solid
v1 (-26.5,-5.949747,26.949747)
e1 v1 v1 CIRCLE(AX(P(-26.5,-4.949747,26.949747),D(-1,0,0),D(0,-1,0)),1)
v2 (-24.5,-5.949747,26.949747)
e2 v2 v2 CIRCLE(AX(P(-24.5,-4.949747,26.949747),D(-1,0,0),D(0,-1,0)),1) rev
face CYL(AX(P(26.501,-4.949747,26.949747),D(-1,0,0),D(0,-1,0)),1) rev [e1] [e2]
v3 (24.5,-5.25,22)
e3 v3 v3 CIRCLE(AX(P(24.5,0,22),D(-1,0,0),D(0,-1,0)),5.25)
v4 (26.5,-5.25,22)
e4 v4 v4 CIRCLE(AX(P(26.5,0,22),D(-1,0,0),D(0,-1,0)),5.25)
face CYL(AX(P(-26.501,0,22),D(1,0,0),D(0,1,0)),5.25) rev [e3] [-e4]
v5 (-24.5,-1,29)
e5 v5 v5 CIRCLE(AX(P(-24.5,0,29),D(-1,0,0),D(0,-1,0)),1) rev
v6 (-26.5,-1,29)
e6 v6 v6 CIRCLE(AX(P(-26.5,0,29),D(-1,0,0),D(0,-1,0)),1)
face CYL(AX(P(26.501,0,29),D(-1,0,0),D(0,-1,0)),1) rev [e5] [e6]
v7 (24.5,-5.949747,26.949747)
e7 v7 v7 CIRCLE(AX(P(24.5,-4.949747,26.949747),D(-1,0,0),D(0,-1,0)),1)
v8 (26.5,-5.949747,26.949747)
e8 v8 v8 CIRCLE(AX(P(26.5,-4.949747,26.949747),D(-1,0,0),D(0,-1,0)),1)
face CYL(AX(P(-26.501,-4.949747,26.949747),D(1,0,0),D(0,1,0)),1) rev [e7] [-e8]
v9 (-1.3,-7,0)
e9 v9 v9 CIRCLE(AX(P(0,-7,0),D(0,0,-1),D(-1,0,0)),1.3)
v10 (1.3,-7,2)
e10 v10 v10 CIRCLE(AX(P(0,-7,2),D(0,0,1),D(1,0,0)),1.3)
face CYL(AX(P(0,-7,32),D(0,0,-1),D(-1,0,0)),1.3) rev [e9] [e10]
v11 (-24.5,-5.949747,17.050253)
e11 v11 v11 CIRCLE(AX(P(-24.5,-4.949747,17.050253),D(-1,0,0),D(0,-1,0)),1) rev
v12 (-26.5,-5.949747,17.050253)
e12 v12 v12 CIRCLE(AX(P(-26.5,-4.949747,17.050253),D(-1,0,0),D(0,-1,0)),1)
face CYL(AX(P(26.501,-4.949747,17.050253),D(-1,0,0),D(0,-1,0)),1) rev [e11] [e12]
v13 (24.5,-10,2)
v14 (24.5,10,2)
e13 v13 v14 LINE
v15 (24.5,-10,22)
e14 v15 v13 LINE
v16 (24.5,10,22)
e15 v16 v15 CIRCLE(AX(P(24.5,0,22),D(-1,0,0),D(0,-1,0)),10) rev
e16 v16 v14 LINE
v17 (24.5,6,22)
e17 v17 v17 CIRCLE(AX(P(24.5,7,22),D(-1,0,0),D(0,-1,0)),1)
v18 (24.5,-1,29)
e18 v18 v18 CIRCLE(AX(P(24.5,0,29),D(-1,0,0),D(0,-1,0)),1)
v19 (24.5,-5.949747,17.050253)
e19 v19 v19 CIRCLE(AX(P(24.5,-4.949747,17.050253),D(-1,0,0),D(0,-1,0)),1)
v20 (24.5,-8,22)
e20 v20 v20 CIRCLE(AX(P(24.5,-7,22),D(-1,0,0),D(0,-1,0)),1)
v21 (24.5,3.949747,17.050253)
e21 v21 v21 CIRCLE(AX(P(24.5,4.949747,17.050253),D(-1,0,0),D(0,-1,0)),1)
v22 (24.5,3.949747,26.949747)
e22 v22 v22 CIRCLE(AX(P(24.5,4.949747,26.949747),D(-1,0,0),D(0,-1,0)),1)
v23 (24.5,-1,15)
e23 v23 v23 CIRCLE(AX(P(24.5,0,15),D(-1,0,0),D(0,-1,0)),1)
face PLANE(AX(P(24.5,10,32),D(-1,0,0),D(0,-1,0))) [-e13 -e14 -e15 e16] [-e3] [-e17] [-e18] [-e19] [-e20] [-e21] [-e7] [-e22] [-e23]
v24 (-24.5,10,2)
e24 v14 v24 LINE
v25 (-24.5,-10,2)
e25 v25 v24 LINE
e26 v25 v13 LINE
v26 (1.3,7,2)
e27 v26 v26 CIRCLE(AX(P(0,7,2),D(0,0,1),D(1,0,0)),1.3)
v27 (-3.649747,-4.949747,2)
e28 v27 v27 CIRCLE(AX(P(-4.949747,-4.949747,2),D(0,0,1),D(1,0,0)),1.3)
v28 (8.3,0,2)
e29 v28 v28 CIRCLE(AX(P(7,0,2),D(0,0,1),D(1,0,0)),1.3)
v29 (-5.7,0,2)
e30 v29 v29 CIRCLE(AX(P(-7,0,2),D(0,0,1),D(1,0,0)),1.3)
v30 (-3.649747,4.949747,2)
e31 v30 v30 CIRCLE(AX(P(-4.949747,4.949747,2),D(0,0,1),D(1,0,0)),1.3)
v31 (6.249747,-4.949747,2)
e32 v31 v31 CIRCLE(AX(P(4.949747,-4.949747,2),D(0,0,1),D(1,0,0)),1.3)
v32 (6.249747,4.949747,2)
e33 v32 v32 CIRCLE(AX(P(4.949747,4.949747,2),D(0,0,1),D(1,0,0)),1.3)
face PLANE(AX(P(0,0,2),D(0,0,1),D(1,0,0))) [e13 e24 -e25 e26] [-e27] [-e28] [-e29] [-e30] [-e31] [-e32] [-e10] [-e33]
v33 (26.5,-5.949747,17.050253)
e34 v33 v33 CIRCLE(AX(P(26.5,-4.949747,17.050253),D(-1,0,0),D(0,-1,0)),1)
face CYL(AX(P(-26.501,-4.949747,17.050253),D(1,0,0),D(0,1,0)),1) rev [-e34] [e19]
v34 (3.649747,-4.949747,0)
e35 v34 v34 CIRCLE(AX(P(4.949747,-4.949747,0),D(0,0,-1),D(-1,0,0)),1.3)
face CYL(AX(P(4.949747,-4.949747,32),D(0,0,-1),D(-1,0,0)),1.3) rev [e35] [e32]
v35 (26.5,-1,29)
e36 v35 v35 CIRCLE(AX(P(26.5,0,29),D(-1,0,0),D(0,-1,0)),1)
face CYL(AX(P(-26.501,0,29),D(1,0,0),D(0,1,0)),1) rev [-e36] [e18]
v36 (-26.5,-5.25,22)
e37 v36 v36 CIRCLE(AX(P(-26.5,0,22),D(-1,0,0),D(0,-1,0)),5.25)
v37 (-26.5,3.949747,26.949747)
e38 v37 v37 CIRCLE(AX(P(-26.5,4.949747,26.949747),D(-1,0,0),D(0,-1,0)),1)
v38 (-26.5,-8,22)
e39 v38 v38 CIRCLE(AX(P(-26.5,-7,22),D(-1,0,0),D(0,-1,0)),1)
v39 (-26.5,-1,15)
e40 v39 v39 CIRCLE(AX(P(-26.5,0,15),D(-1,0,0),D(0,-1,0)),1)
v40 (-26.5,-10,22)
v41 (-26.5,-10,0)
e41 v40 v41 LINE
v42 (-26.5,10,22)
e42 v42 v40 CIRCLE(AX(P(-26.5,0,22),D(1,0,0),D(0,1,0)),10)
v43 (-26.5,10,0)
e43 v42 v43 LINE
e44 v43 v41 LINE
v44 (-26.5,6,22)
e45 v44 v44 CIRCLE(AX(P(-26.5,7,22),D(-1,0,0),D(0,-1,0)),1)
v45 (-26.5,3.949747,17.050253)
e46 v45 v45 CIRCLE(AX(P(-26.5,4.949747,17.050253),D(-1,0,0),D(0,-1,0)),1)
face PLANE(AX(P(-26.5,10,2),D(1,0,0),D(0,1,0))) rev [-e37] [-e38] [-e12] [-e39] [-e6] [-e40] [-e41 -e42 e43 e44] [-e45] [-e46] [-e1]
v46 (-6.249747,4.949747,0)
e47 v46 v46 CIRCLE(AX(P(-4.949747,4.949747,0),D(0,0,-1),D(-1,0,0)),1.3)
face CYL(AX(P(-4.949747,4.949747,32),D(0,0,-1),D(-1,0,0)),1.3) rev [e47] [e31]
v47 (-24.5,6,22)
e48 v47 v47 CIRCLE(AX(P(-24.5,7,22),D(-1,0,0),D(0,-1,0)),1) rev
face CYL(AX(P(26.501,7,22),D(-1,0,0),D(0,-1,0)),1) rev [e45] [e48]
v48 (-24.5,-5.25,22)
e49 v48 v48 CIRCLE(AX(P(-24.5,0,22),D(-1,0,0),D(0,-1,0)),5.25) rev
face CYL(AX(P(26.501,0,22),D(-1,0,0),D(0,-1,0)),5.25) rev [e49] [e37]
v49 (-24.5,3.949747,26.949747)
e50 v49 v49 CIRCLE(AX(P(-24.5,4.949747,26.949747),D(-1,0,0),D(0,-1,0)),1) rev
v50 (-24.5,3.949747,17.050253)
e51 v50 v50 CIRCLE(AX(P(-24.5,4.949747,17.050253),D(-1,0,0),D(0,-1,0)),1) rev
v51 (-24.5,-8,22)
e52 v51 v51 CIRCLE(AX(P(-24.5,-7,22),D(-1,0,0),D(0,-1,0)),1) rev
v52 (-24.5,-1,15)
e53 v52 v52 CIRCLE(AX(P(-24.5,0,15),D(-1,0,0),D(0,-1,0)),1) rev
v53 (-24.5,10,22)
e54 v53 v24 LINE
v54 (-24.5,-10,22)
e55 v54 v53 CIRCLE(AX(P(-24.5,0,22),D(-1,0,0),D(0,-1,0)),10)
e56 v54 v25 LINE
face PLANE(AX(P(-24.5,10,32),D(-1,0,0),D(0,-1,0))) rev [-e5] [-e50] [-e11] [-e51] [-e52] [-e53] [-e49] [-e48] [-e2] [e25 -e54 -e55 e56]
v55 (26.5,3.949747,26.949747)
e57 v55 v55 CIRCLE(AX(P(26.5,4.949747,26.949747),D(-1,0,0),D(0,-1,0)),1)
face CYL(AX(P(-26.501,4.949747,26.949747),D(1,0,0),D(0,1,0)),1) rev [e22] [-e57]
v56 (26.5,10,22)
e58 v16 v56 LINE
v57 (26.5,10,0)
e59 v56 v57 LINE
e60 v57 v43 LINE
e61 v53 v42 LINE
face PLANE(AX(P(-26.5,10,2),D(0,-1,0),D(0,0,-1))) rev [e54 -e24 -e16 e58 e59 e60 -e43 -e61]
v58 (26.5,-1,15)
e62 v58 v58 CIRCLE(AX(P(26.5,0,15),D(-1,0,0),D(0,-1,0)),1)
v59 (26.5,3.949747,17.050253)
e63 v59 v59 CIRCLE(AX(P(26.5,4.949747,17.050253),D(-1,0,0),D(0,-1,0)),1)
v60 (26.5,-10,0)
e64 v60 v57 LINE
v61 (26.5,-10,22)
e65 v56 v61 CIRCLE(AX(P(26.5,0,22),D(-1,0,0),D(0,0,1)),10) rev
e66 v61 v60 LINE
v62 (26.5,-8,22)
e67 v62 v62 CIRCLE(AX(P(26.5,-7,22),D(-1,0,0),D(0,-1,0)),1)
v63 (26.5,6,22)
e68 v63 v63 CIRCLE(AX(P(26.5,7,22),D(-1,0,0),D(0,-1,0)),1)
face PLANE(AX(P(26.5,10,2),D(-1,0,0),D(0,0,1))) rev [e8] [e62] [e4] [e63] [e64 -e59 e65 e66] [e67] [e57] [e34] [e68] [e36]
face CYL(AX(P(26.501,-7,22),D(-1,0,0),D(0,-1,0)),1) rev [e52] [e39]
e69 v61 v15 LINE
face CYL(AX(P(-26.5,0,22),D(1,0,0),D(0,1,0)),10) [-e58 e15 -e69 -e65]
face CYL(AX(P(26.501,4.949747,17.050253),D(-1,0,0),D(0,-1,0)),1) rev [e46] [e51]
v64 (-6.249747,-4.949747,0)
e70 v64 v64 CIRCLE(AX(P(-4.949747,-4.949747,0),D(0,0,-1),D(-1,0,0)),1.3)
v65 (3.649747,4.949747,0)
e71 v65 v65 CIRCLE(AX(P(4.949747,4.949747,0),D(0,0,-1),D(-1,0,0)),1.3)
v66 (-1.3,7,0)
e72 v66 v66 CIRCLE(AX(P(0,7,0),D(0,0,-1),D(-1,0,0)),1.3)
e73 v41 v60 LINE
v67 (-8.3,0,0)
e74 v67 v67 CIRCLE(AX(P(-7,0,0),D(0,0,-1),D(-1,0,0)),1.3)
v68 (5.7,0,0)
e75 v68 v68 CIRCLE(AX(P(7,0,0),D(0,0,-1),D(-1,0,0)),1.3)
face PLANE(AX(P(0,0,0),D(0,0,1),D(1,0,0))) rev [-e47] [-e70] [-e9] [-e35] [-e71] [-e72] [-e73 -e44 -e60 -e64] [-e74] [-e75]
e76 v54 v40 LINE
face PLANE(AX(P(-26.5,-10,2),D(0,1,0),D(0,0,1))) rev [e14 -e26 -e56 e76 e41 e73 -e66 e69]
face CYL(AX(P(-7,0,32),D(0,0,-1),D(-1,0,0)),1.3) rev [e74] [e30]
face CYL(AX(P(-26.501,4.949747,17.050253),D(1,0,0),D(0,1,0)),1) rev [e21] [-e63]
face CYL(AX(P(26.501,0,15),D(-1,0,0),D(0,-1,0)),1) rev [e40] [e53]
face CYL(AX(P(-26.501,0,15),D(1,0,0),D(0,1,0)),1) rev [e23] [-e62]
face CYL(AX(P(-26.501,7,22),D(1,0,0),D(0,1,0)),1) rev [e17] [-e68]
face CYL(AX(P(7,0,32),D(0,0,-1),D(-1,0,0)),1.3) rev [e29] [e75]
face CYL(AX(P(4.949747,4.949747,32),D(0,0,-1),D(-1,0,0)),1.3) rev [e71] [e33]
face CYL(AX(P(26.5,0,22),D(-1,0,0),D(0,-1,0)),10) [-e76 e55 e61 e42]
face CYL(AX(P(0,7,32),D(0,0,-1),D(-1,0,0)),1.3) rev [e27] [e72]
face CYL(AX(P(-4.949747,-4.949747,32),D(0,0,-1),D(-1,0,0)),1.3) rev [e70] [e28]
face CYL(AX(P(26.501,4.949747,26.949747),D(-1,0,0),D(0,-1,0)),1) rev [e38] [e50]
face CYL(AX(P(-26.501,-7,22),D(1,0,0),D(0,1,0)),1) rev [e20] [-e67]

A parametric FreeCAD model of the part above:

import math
import FreeCAD as App
import Part
import Sketcher

V = App.Vector
Q = App.Units.Quantity


def add_polygon(sketch, points):
    """Adds a closed chain of lines whose ends are joined by coincident constraints."""
    first, n = sketch.GeometryCount, len(points)
    for a, b in zip(points, points[1:] + points[:1]):
        sketch.addGeometry(Part.LineSegment(App.Vector(*a, 0), App.Vector(*b, 0)), False)
    for i in range(n):
        sketch.addConstraint(Sketcher.Constraint("Coincident", first + i, 2, first + (i + 1) % n, 1))

doc = App.newDocument("Part")
body = doc.addObject("PartDesign::Body", "Body")

# Sketch on XY plane
sketch1 = body.newObject("Sketcher::SketchObject", "Sketch")
sketch1.AttachmentSupport = (doc.getObject("XY_Plane"), [""])
sketch1.MapMode = "FlatFace"
add_polygon(sketch1, [(-26, 10), (-26, -10), (26, -10), (26, 10)])  # lines 0-3
sketch1.addConstraint([
    Sketcher.Constraint("Vertical", 0),
    Sketcher.Constraint("Horizontal", 1),
    Sketcher.Constraint("Vertical", 2),
    Sketcher.Constraint("Horizontal", 3),
    Sketcher.Constraint("Symmetric", 0, 2, 2, 2, -1, 1),
    Sketcher.Constraint("DistanceX", 1, 1, 1, 2, Q("53 mm")),
    Sketcher.Constraint("DistanceY", 0, 2, 0, 1, Q("20 mm")),
])
pad1 = body.newObject("PartDesign::Pad", "Pad")
pad1.Profile = sketch1
pad1.Length = 2

# Sketch on XY plane
sketch2 = body.newObject("Sketcher::SketchObject", "Sketch001")
sketch2.AttachmentSupport = (doc.getObject("XY_Plane"), [""])
sketch2.MapMode = "FlatFace"
sketch2.AttachmentOffset = App.Placement(V(0, 0, 2), App.Rotation())
add_polygon(sketch2, [(-26.5, 10), (-26.5, -10), (-24.5, -10), (-24.5, 10)])  # lines 0-3
sketch2.addConstraint([
    Sketcher.Constraint("Vertical", 0),
    Sketcher.Constraint("Horizontal", 1),
    Sketcher.Constraint("Vertical", 2),
    Sketcher.Constraint("Horizontal", 3),
    Sketcher.Constraint("DistanceX", 1, 1, 1, 2, Q("2 mm")),
    Sketcher.Constraint("DistanceY", 0, 2, 0, 1, Q("20 mm")),
    Sketcher.Constraint("DistanceY", 0, 2, -1, 1, Q("10 mm")),
    Sketcher.Constraint("DistanceX", 0, 2, -1, 1, Q("26.5 mm")),
])
pad2 = body.newObject("PartDesign::Pad", "Pad001")
pad2.Profile = sketch2
pad2.Length = 30

# Sketch on YZ plane
sketch3 = body.newObject("Sketcher::SketchObject", "Sketch002")
sketch3.AttachmentSupport = (doc.getObject("YZ_Plane"), [""])
sketch3.MapMode = "FlatFace"
sketch3.AttachmentOffset = App.Placement(V(0, 0, -54.5), App.Rotation())
sketch3.addGeometry([
    Part.LineSegment(V(10, 32, 0), V(0, 32, 0)),  # 0
    Part.ArcOfCircle(Part.Circle(V(0, 22, 0), V(0, 0, 1), 10), math.radians(0), math.radians(90)),  # 1
    Part.LineSegment(V(10, 22, 0), V(10, 32, 0)),  # 2
    Part.LineSegment(V(-10, 32, 0), V(-10, 22, 0)),  # 3
    Part.ArcOfCircle(Part.Circle(V(0, 22, 0), V(0, 0, 1), 10), math.radians(90), math.radians(180)),  # 4
    Part.LineSegment(V(0, 32, 0), V(-10, 32, 0)),  # 5
], False)
sketch3.addConstraint([
    Sketcher.Constraint("Tangent", 0, 2, 1, 2),
    Sketcher.Constraint("Tangent", 1, 1, 2, 1),
    Sketcher.Constraint("Coincident", 2, 2, 0, 1),
    Sketcher.Constraint("Tangent", 3, 2, 4, 2),
    Sketcher.Constraint("Tangent", 4, 1, 5, 1),
    Sketcher.Constraint("Coincident", 5, 2, 3, 1),
    Sketcher.Constraint("Horizontal", 0),
    Sketcher.Constraint("Vertical", 2),
    Sketcher.Constraint("Vertical", 3),
    Sketcher.Constraint("Horizontal", 5),
    Sketcher.Constraint("Coincident", 4, 3, 1, 3),
    Sketcher.Constraint("Equal", 1, 4),
    Sketcher.Constraint("PointOnObject", 1, 3, -2),
    Sketcher.Constraint("Radius", 1, Q("10 mm")),
    Sketcher.Constraint("DistanceY", -1, 1, 1, 3, Q("22 mm")),
])
pocket1 = body.newObject("PartDesign::Pocket", "Pocket")
pocket1.Profile = sketch3
pocket1.Length = 82
pocket1.Reversed = True

# Sketch on YZ plane
sketch4 = body.newObject("Sketcher::SketchObject", "Sketch003")
sketch4.AttachmentSupport = (doc.getObject("YZ_Plane"), [""])
sketch4.MapMode = "FlatFace"
sketch4.AttachmentOffset = App.Placement(V(0, 0, -26.5), App.Rotation())
sketch4.addGeometry([
    Part.Circle(V(0, 29, 0), V(0, 0, 1), 1),  # 0
    Part.Circle(V(-4.9, 26.9, 0), V(0, 0, 1), 1),  # 1
    Part.Circle(V(-7, 22, 0), V(0, 0, 1), 1),  # 2
    Part.Circle(V(-4.9, 17.1, 0), V(0, 0, 1), 1),  # 3
    Part.Circle(V(0, 15, 0), V(0, 0, 1), 1),  # 4
    Part.Circle(V(4.9, 17.1, 0), V(0, 0, 1), 1),  # 5
    Part.Circle(V(7, 22, 0), V(0, 0, 1), 1),  # 6
    Part.Circle(V(4.9, 26.9, 0), V(0, 0, 1), 1),  # 7
    Part.Circle(V(0, 22, 0), V(0, 0, 1), 5.2),  # 8
], False)
sketch4.addConstraint([
    Sketcher.Constraint("Equal", 0, 1),
    Sketcher.Constraint("Equal", 1, 2),
    Sketcher.Constraint("Equal", 2, 3),
    Sketcher.Constraint("Equal", 3, 4),
    Sketcher.Constraint("Equal", 4, 5),
    Sketcher.Constraint("Equal", 5, 6),
    Sketcher.Constraint("Equal", 6, 7),
    Sketcher.Constraint("Symmetric", 3, 3, 5, 3, -2),
    Sketcher.Constraint("Symmetric", 2, 3, 6, 3, -2),
    Sketcher.Constraint("Symmetric", 1, 3, 7, 3, -2),
    Sketcher.Constraint("PointOnObject", 0, 3, -2),
    Sketcher.Constraint("PointOnObject", 4, 3, -2),
    Sketcher.Constraint("PointOnObject", 8, 3, -2),
    Sketcher.Constraint("Horizontal", 6, 3, 8, 3),
    Sketcher.Constraint("Vertical", 1, 3, 3, 3),
    Sketcher.Constraint("Diameter", 0, Q("2 mm")),
    Sketcher.Constraint("Diameter", 8, Q("10.5 mm")),
    Sketcher.Constraint("DistanceY", -1, 1, 0, 3, Q("29 mm")),
    Sketcher.Constraint("DistanceX", 2, 3, -1, 1, Q("7 mm")),
    Sketcher.Constraint("DistanceY", -1, 1, 2, 3, Q("22 mm")),
    Sketcher.Constraint("DistanceY", -1, 1, 4, 3, Q("15 mm")),
    Sketcher.Constraint("DistanceX", 1, 3, -1, 1, Q("4.949747 mm")),
    Sketcher.Constraint("DistanceY", -1, 1, 1, 3, Q("26.949747 mm")),
    Sketcher.Constraint("DistanceY", -1, 1, 3, 3, Q("17.050253 mm")),
])
pocket2 = body.newObject("PartDesign::Pocket", "Pocket001")
pocket2.Profile = sketch4
pocket2.Length = 2
pocket2.Reversed = True
doc.recompute()

mirrored = body.newObject("PartDesign::Mirrored", "Mirrored")
mirrored.Originals = [pad2, pocket1, pocket2]
mirrored.MirrorPlane = (doc.getObject("YZ_Plane"), [""])
body.Tip = mirrored

# Sketch on XY plane
sketch5 = body.newObject("Sketcher::SketchObject", "Sketch004")
sketch5.AttachmentSupport = (doc.getObject("XY_Plane"), [""])
sketch5.MapMode = "FlatFace"
sketch5.addGeometry([
    Part.Circle(V(7, 0, 0), V(0, 0, 1), 1.3),  # 0
    Part.Circle(V(4.9, 4.9, 0), V(0, 0, 1), 1.3),  # 1
    Part.Circle(V(0, 7, 0), V(0, 0, 1), 1.3),  # 2
    Part.Circle(V(-4.9, 4.9, 0), V(0, 0, 1), 1.3),  # 3
    Part.Circle(V(-7, 0, 0), V(0, 0, 1), 1.3),  # 4
    Part.Circle(V(-4.9, -4.9, 0), V(0, 0, 1), 1.3),  # 5
    Part.Circle(V(0, -7, 0), V(0, 0, 1), 1.3),  # 6
    Part.Circle(V(4.9, -4.9, 0), V(0, 0, 1), 1.3),  # 7
], False)
sketch5.addConstraint([
    Sketcher.Constraint("Equal", 0, 1),
    Sketcher.Constraint("Equal", 1, 2),
    Sketcher.Constraint("Equal", 2, 3),
    Sketcher.Constraint("Equal", 3, 4),
    Sketcher.Constraint("Equal", 4, 5),
    Sketcher.Constraint("Equal", 5, 6),
    Sketcher.Constraint("Equal", 6, 7),
    Sketcher.Constraint("Symmetric", 0, 3, 4, 3, -1, 1),
    Sketcher.Constraint("Symmetric", 1, 3, 5, 3, -1, 1),
    Sketcher.Constraint("Symmetric", 2, 3, 6, 3, -1, 1),
    Sketcher.Constraint("Symmetric", 3, 3, 7, 3, -1, 1),
    Sketcher.Constraint("Symmetric", 1, 3, 3, 3, -2),
    Sketcher.Constraint("PointOnObject", 0, 3, -1),
    Sketcher.Constraint("PointOnObject", 2, 3, -2),
    Sketcher.Constraint("Diameter", 0, Q("2.6 mm")),
    Sketcher.Constraint("DistanceX", -1, 1, 0, 3, Q("7 mm")),
    Sketcher.Constraint("DistanceY", -1, 1, 2, 3, Q("7 mm")),
    Sketcher.Constraint("DistanceX", -1, 1, 1, 3, Q("4.949747 mm")),
    Sketcher.Constraint("DistanceY", -1, 1, 1, 3, Q("4.949747 mm")),
])
pocket3 = body.newObject("PartDesign::Pocket", "Pocket002")
pocket3.Profile = sketch5
pocket3.Type = "ThroughAll"
pocket3.Reversed = True

doc.recompute()
